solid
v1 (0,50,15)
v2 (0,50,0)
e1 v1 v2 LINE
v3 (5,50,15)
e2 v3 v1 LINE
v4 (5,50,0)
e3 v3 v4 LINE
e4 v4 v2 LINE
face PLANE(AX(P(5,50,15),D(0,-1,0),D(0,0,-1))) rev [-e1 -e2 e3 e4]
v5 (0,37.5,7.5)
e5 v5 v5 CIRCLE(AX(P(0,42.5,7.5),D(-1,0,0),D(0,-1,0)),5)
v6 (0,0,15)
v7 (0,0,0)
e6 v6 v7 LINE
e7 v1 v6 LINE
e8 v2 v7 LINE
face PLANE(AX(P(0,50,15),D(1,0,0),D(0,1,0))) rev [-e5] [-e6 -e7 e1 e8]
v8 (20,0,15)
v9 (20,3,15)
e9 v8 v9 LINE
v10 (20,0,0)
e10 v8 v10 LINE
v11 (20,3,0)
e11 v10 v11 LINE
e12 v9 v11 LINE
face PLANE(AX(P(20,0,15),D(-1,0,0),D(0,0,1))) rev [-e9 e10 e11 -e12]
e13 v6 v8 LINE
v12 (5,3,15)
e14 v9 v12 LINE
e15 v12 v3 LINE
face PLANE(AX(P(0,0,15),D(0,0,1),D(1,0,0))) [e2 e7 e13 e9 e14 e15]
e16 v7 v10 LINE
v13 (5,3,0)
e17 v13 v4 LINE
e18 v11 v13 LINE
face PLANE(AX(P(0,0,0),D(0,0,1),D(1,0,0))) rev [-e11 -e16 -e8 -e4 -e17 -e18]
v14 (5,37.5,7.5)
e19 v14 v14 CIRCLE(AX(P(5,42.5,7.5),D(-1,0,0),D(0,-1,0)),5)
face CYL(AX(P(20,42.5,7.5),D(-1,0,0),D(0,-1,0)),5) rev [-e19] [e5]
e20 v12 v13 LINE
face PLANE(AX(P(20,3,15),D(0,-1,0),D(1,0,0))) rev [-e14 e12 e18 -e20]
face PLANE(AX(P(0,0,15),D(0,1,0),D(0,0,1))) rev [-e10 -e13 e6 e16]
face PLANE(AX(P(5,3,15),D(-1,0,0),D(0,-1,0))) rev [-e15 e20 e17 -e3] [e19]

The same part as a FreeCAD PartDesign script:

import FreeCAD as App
import Part
import Sketcher

V = App.Vector

doc = App.newDocument("Part")
body = doc.addObject("PartDesign::Body", "Body")

# Sketch on XY plane
sketch1 = body.newObject("Sketcher::SketchObject", "Sketch")
sketch1.AttachmentSupport = (doc.getObject("XY_Plane"), [""])
sketch1.MapMode = "FlatFace"
sketch1.addGeometry([
    Part.LineSegment(V(0, 0, 0), V(20, 0, 0)),  # 0
    Part.LineSegment(V(20, 0, 0), V(20, 3, 0)),  # 1
    Part.LineSegment(V(20, 3, 0), V(5, 3, 0)),  # 2
    Part.LineSegment(V(5, 3, 0), V(5, 50, 0)),  # 3
    Part.LineSegment(V(5, 50, 0), V(0, 50, 0)),  # 4
    Part.LineSegment(V(0, 50, 0), V(0, 0, 0)),  # 5
], False)
sketch1.addConstraint([
    Sketcher.Constraint("Coincident", 0, 2, 1, 1),
    Sketcher.Constraint("Coincident", 1, 2, 2, 1),
    Sketcher.Constraint("Coincident", 2, 2, 3, 1),
    Sketcher.Constraint("Coincident", 3, 2, 4, 1),
    Sketcher.Constraint("Coincident", 4, 2, 5, 1),
    Sketcher.Constraint("Coincident", 5, 2, 0, 1),
    Sketcher.Constraint("Horizontal", 0),
    Sketcher.Constraint("Vertical", 1),
    Sketcher.Constraint("Horizontal", 2),
    Sketcher.Constraint("Vertical", 3),
    Sketcher.Constraint("Horizontal", 4),
    Sketcher.Constraint("Vertical", 5),
    Sketcher.Constraint("Coincident", 5, 2, -1, 1),
    Sketcher.Constraint("DistanceX", 0, 1, 0, 2, 20.0),
    Sketcher.Constraint("DistanceX", 2, 2, 2, 1, 15.0),
    Sketcher.Constraint("DistanceY", 1, 1, 1, 2, 3.0),
    Sketcher.Constraint("DistanceY", 3, 1, 3, 2, 47.0),
])
pad1 = body.newObject("PartDesign::Pad", "Pad")
pad1.Profile = sketch1
pad1.Length = 15

# Sketch on YZ plane
sketch2 = body.newObject("Sketcher::SketchObject", "Sketch001")
sketch2.AttachmentSupport = (doc.getObject("YZ_Plane"), [""])
sketch2.MapMode = "FlatFace"
sketch2.addGeometry(Part.Circle(V(42, 8, 0), V(0, 0, 1), 5), False)
sketch2.addConstraint([
    Sketcher.Constraint("Diameter", 0, 10.0),
    Sketcher.Constraint("DistanceX", -1, 1, 0, 3, 42.5),
    Sketcher.Constraint("DistanceY", -1, 1, 0, 3, 7.5),
])
pocket1 = body.newObject("PartDesign::Pocket", "Pocket")
pocket1.Profile = sketch2
pocket1.Type = "ThroughAll"
pocket1.Reversed = True

doc.recompute()
